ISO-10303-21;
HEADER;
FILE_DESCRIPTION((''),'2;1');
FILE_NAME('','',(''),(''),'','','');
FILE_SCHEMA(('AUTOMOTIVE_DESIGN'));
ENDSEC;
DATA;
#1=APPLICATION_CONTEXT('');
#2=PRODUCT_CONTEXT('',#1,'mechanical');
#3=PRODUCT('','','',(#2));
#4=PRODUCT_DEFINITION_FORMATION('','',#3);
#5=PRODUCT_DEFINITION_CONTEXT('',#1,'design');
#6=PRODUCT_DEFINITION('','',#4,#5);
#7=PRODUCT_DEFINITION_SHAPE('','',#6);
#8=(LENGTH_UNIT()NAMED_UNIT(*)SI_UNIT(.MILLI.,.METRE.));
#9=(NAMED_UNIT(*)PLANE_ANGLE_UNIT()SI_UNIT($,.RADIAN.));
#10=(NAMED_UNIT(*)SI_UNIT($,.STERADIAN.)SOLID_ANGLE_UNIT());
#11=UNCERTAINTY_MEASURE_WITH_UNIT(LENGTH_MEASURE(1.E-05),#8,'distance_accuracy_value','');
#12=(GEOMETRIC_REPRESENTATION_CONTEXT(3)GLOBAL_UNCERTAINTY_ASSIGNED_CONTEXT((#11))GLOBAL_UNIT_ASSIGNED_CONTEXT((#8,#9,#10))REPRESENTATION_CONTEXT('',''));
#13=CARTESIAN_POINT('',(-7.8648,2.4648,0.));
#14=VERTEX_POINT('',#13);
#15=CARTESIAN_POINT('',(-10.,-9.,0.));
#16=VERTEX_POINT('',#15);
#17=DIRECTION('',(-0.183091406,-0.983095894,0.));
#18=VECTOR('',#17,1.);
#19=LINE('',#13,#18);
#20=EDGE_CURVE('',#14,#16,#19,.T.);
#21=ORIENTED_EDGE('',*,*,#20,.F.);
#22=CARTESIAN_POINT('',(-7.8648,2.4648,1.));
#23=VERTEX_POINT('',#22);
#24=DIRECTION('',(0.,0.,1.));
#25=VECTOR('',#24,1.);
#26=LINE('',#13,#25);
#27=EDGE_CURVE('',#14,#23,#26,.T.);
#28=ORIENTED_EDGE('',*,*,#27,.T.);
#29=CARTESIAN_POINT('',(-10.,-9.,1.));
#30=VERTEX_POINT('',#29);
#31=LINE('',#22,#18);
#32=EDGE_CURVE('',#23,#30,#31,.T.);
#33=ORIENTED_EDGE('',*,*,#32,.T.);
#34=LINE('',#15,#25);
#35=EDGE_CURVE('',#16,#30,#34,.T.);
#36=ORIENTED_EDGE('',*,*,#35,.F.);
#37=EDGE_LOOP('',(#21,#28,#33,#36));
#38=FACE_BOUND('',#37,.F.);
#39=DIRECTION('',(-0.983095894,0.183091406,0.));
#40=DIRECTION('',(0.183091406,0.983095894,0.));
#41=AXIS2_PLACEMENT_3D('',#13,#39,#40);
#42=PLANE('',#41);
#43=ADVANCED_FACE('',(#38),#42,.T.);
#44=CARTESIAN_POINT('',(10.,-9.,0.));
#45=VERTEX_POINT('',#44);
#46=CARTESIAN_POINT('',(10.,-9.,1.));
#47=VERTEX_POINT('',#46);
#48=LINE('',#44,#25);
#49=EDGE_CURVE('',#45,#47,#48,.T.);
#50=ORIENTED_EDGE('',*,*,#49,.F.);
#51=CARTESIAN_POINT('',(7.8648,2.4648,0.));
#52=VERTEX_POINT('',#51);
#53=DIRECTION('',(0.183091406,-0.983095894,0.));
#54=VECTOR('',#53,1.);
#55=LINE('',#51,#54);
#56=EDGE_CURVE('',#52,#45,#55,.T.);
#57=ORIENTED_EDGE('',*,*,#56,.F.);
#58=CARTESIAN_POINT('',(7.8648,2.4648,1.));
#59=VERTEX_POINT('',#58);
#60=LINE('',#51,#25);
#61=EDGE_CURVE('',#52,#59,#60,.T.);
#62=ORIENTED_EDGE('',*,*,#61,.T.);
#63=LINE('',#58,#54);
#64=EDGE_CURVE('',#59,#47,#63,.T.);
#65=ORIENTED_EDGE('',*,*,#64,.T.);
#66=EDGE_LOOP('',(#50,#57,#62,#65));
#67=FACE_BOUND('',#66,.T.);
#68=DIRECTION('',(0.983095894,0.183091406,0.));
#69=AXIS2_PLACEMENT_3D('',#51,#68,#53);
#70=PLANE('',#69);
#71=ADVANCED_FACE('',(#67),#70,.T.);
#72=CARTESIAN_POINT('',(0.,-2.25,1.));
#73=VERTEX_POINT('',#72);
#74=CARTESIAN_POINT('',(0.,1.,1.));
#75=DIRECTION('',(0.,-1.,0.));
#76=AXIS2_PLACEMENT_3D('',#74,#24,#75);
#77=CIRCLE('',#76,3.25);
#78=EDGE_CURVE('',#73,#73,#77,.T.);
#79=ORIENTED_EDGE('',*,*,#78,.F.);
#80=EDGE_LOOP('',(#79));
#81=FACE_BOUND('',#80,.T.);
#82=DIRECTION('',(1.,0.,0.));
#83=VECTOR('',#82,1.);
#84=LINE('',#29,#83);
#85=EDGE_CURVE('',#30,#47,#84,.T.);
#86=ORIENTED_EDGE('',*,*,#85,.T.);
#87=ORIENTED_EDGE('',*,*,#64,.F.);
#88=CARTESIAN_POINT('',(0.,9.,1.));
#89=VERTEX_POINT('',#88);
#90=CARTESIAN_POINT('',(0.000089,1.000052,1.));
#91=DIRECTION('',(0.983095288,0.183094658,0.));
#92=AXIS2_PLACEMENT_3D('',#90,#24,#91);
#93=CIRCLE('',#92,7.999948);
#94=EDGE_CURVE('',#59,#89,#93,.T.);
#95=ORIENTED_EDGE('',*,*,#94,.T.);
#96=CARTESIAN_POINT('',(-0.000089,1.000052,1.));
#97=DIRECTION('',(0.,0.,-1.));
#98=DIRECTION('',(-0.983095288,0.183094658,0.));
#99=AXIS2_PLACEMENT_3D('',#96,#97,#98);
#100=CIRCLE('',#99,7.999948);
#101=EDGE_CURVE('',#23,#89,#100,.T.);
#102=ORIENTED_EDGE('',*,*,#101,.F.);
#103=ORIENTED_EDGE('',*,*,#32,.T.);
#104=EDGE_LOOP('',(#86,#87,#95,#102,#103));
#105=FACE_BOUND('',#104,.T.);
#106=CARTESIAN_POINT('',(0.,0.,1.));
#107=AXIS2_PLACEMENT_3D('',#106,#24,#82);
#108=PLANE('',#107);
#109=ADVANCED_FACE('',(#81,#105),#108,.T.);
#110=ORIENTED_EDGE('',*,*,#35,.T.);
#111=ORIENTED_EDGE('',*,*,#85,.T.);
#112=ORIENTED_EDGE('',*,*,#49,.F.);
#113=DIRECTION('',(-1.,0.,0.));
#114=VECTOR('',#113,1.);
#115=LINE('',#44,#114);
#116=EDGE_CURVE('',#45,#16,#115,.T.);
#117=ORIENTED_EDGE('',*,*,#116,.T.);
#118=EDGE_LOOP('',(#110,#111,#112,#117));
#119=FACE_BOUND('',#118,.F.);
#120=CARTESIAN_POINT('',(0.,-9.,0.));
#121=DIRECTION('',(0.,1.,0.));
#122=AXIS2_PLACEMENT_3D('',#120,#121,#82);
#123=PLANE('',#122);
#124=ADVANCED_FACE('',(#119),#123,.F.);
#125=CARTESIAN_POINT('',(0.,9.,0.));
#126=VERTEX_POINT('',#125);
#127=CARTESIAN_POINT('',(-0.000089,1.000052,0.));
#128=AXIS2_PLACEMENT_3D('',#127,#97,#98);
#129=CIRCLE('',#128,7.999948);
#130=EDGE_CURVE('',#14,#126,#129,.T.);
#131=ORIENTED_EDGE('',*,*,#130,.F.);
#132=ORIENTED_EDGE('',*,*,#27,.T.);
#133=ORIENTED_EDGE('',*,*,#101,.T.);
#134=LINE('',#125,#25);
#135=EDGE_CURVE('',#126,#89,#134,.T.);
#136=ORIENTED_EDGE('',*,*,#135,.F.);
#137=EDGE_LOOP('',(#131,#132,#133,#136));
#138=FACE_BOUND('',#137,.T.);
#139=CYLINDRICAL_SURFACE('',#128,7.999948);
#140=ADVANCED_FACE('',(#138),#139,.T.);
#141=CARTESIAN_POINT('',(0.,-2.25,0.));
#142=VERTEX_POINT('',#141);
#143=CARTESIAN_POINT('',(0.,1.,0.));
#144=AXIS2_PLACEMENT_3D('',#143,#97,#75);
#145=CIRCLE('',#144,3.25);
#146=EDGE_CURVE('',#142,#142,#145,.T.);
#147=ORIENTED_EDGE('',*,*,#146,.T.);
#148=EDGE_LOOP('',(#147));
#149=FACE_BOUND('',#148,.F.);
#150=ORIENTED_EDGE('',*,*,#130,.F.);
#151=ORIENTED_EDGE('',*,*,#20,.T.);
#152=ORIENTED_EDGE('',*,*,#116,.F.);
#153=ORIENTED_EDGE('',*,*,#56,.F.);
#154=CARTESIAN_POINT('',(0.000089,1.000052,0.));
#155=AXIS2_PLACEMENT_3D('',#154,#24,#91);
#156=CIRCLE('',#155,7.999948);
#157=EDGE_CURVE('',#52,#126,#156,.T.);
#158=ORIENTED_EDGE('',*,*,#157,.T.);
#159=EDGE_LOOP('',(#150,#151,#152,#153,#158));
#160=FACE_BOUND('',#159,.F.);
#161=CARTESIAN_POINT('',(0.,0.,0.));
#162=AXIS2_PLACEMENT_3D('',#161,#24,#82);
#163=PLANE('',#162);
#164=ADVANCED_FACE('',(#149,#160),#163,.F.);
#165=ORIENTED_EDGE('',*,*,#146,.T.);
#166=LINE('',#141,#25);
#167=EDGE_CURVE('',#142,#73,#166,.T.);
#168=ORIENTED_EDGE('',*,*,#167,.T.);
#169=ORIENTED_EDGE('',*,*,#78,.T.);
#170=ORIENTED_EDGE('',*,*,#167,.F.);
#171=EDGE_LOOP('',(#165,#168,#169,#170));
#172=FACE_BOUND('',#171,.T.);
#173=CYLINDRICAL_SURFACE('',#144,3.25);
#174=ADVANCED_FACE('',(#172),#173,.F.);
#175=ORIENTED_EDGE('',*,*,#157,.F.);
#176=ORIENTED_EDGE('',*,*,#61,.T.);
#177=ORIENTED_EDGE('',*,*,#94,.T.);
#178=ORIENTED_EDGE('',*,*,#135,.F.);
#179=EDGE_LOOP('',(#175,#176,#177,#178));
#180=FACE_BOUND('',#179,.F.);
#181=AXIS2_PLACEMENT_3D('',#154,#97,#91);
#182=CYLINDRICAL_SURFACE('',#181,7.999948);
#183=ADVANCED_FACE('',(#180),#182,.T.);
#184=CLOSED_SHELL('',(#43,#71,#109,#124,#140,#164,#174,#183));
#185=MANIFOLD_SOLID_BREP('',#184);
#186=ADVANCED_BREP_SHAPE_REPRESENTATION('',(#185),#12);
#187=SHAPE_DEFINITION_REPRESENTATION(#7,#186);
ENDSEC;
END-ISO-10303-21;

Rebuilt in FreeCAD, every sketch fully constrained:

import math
import FreeCAD as App
import Part
import Sketcher
Q = App.Units.Quantity

doc = App.newDocument("Part")
params = doc.addObject("Spreadsheet::Sheet", "Params")
for row, (alias, value) in enumerate([
    ("sketch1_width", "10 mm"),
    ("sketch1_radius", "3.25 mm"),
    ("sketch1_radius2", "8 mm"),
    ("pad1_length", "1 mm"),
], start=1):
    params.set(f"A{row}", alias)
    params.set(f"B{row}", "=" + value)
    params.setAlias(f"B{row}", alias)

body = doc.addObject("PartDesign::Body", "Body")

# Sketch on XY plane
sketch1 = doc.addObject("Sketcher::SketchObject", "Sketch")
body.addObject(sketch1)
sketch1.AttachmentSupport = (doc.XY_Plane, [""])
sketch1.MapMode = "FlatFace"
sketch1.addGeometry([
    Part.LineSegment(App.Vector(0, -2.2, 0), App.Vector(0, -9, 0)),  # 0
    Part.LineSegment(App.Vector(0, -9, 0), App.Vector(10, -9, 0)),  # 1
    Part.LineSegment(App.Vector(10, -9, 0), App.Vector(7.9, 2.5, 0)),  # 2
    Part.ArcOfCircle(Part.Circle(App.Vector(0, 1, 0), App.Vector(0, 0, 1), 8), math.radians(11), math.radians(90)),  # 3
    Part.LineSegment(App.Vector(0, 9, 0), App.Vector(0, 4.2, 0)),  # 4
    Part.ArcOfCircle(Part.Circle(App.Vector(0, 1, 0), App.Vector(0, 0, 1), 3.2), math.radians(-90), math.radians(90)),  # 5
], False)
sketch1.addConstraint([
    Sketcher.Constraint("Coincident", 0, 2, 1, 1),
    Sketcher.Constraint("Coincident", 1, 2, 2, 1),
    Sketcher.Constraint("Tangent", 2, 2, 3, 1),
    Sketcher.Constraint("Coincident", 3, 2, 4, 1),
    Sketcher.Constraint("Coincident", 4, 2, 5, 2),
    Sketcher.Constraint("Coincident", 5, 1, 0, 1),
    Sketcher.Constraint("Vertical", 0),
    Sketcher.Constraint("Horizontal", 1),
    Sketcher.Constraint("Vertical", 4),
    Sketcher.Constraint("Coincident", 5, 3, 3, 3),
    Sketcher.Constraint("Symmetric", 0, 2, 3, 2, -1, 1),
    Sketcher.Constraint("PointOnObject", 3, 3, -2),
    Sketcher.Constraint("PointOnObject", 0, 2, -2),
    Sketcher.Constraint("DistanceX", 1, 1, 1, 2, Q("10 mm")),
    Sketcher.Constraint("Radius", 5, Q("3.25 mm")),
    Sketcher.Constraint("Radius", 3, Q("8 mm")),
    Sketcher.Constraint("DistanceY", 0, 2, 3, 3, Q("10 mm")),
])
sketch1.setExpression("Constraints[13]", "Params.sketch1_width")
sketch1.setExpression("Constraints[14]", "Params.sketch1_radius")
sketch1.setExpression("Constraints[15]", "Params.sketch1_radius2")
pad1 = doc.addObject("PartDesign::Pad", "Pad")
body.addObject(pad1)
pad1.Profile = sketch1
pad1.setExpression("Length", "Params.pad1_length")
doc.recompute()

mirrored = doc.addObject("PartDesign::Mirrored", "Mirrored")
body.addObject(mirrored)
mirrored.Originals = [pad1]
mirrored.MirrorPlane = (doc.YZ_Plane, [""])
body.Tip = mirrored

doc.recompute()
